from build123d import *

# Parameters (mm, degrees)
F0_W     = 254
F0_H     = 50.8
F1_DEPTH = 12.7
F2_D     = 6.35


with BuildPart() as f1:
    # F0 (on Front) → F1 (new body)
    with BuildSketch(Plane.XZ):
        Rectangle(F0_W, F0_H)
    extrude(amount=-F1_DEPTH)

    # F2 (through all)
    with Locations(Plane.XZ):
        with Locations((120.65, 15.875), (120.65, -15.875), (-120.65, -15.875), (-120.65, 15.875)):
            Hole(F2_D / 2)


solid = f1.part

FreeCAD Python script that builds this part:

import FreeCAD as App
import Part
import Sketcher

V = App.Vector
Q = App.Units.Quantity

doc = App.newDocument("Part")
body = doc.addObject("PartDesign::Body", "Body")

sketch1 = doc.addObject("Sketcher::SketchObject", "Sketch")
body.addObject(sketch1)
sketch1.AttachmentSupport = (doc.XZ_Plane, [""])
sketch1.MapMode = "FlatFace"
sketch1.addGeometry(Part.LineSegment(V(-127, 25, 0), V(-127, -25, 0)), False)
sketch1.addGeometry(Part.LineSegment(V(-127, -25, 0), V(127, -25, 0)), False)
sketch1.addGeometry(Part.LineSegment(V(127, -25, 0), V(127, 25, 0)), False)
sketch1.addGeometry(Part.LineSegment(V(127, 25, 0), V(-127, 25, 0)), False)
sketch1.addConstraint(Sketcher.Constraint("Coincident", 0, 2, 1, 1))
sketch1.addConstraint(Sketcher.Constraint("Coincident", 1, 2, 2, 1))
sketch1.addConstraint(Sketcher.Constraint("Coincident", 2, 2, 3, 1))
sketch1.addConstraint(Sketcher.Constraint("Coincident", 3, 2, 0, 1))
sketch1.addConstraint(Sketcher.Constraint("Vertical", 0))
sketch1.addConstraint(Sketcher.Constraint("Horizontal", 1))
sketch1.addConstraint(Sketcher.Constraint("Vertical", 2))
sketch1.addConstraint(Sketcher.Constraint("Horizontal", 3))
sketch1.addConstraint(Sketcher.Constraint("Symmetric", 0, 2, 2, 2, -1, 1))
sketch1.addConstraint(Sketcher.Constraint("DistanceX", 1, 1, 1, 2, Q("10 in")))
sketch1.addConstraint(Sketcher.Constraint("DistanceY", 0, 2, 0, 1, Q("2 in")))
pad1 = doc.addObject("PartDesign::Pad", "Pad")
body.addObject(pad1)
pad1.Profile = sketch1
pad1.Length = Q("0.5 in")
pad1.Reversed = True

sketch2 = doc.addObject("Sketcher::SketchObject", "Sketch001")
body.addObject(sketch2)
sketch2.AttachmentSupport = (doc.XZ_Plane, [""])
sketch2.MapMode = "FlatFace"
sketch2.addGeometry(Part.Circle(V(120.7, 15.9, 0), V(0, 0, 1), 3.2), False)
sketch2.addGeometry(Part.Circle(V(120.7, -15.9, 0), V(0, 0, 1), 3.2), False)
sketch2.addGeometry(Part.Circle(V(-120.7, -15.9, 0), V(0, 0, 1), 3.2), False)
sketch2.addGeometry(Part.Circle(V(-120.7, 15.9, 0), V(0, 0, 1), 3.2), False)
sketch2.addConstraint(Sketcher.Constraint("Equal", 0, 1))
sketch2.addConstraint(Sketcher.Constraint("Equal", 1, 2))
sketch2.addConstraint(Sketcher.Constraint("Equal", 2, 3))
sketch2.addConstraint(Sketcher.Constraint("Symmetric", 0, 3, 2, 3, -1, 1))
sketch2.addConstraint(Sketcher.Constraint("Symmetric", 1, 3, 3, 3, -1, 1))
sketch2.addConstraint(Sketcher.Constraint("Symmetric", 1, 3, 2, 3, -2))
sketch2.addConstraint(Sketcher.Constraint("Diameter", 0, Q("0.25 in")))
sketch2.addConstraint(Sketcher.Constraint("DistanceX", 2, 3, 1, 3, Q("9.5 in")))
sketch2.addConstraint(Sketcher.Constraint("DistanceY", 1, 3, 0, 3, Q("1.25 in")))
doc.recompute()
hole = doc.addObject("PartDesign::Hole", "Hole")
body.addObject(hole)
hole.Profile = sketch2
hole.ThreadType = "None"
hole.Diameter = Q("0.25 in")
hole.DepthType = "ThroughAll"

doc.recompute()
